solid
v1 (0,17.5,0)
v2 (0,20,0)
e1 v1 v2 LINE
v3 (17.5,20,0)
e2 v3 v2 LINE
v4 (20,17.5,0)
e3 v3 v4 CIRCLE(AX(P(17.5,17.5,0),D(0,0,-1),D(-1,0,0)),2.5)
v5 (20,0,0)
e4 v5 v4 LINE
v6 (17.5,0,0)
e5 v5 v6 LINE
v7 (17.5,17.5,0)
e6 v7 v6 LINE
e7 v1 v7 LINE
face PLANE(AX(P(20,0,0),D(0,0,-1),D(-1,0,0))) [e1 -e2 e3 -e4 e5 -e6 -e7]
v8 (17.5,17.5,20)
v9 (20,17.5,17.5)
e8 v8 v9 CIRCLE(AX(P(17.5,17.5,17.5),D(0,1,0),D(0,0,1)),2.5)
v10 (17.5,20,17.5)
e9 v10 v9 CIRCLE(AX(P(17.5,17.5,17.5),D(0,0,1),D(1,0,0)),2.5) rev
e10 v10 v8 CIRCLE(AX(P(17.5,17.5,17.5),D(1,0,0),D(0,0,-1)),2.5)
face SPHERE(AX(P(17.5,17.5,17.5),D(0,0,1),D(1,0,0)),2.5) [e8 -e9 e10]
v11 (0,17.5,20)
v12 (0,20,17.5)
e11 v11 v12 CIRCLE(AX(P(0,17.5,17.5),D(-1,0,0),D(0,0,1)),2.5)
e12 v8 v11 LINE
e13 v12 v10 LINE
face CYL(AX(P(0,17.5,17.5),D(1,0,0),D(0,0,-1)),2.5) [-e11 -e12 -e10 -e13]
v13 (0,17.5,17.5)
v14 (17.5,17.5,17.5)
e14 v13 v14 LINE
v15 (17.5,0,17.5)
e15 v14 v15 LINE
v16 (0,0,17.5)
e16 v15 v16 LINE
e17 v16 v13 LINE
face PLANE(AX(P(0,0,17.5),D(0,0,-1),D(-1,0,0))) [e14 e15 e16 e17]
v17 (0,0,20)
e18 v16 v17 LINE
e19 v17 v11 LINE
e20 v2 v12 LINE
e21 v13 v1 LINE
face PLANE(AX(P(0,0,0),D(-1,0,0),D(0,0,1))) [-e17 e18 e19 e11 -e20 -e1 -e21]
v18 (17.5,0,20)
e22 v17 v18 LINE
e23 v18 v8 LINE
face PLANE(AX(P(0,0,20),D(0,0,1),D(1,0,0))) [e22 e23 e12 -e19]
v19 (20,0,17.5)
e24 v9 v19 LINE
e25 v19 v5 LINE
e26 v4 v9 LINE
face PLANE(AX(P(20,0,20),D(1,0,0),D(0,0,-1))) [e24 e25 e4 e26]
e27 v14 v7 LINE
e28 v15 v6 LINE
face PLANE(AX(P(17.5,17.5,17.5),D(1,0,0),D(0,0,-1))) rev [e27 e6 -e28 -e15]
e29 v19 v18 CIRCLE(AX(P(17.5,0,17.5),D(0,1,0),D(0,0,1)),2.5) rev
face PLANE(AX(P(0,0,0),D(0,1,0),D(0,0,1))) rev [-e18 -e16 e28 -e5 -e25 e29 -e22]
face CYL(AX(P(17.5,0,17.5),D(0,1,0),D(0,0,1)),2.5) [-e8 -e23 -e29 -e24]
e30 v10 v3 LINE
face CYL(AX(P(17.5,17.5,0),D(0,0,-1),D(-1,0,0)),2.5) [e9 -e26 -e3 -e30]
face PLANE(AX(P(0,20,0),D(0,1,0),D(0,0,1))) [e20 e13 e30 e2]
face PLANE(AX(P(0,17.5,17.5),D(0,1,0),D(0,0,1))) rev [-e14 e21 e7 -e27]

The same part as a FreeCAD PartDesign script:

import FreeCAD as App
import Part
import Sketcher

V = App.Vector


def edges_at(feature, points):
    """Names of the edges that pass closest to the given points."""
    edges = feature.Shape.Edges
    near = lambda p: min(range(len(edges)), key=lambda i: edges[i].distToShape(Part.Vertex(*p))[0])
    return sorted({f"Edge{near(p) + 1}" for p in points})


def add_polygon(sketch, points):
    """Adds a closed chain of lines whose ends are joined by coincident constraints."""
    first, n = sketch.GeometryCount, len(points)
    for a, b in zip(points, points[1:] + points[:1]):
        sketch.addGeometry(Part.LineSegment(App.Vector(*a, 0), App.Vector(*b, 0)), False)
    for i in range(n):
        sketch.addConstraint(Sketcher.Constraint("Coincident", first + i, 2, first + (i + 1) % n, 1))

doc = App.newDocument("Part")
body = doc.addObject("PartDesign::Body", "Body")

sketch1 = body.newObject("Sketcher::SketchObject", "Sketch")
sketch1.AttachmentSupport = (doc.getObject("XZ_Plane"), [""])
sketch1.MapMode = "FlatFace"
sketch1.AttachmentOffset = App.Placement(V(0, 0, -20), App.Rotation())
add_polygon(sketch1, [(0, 0), (0, 20), (20, 20), (20, 0)])
sketch1.addConstraint(Sketcher.Constraint("Vertical", 0))
sketch1.addConstraint(Sketcher.Constraint("Horizontal", 1))
sketch1.addConstraint(Sketcher.Constraint("Vertical", 2))
sketch1.addConstraint(Sketcher.Constraint("Horizontal", 3))
sketch1.addConstraint(Sketcher.Constraint("Coincident", 3, 2, -1, 1))
sketch1.addConstraint(Sketcher.Constraint("Equal", 3, 0))
sketch1.addConstraint(Sketcher.Constraint("DistanceX", 1, 1, 1, 2, 20.0))
pad1 = body.newObject("PartDesign::Pad", "Pad")
pad1.Profile = sketch1
pad1.Length = 20

sketch2 = body.newObject("Sketcher::SketchObject", "Sketch001")
sketch2.AttachmentSupport = (doc.getObject("XY_Plane"), [""])
sketch2.MapMode = "FlatFace"
add_polygon(sketch2, [(18, 18), (18, 0), (0, 0), (0, 18)])
sketch2.addConstraint(Sketcher.Constraint("Vertical", 0))
sketch2.addConstraint(Sketcher.Constraint("Horizontal", 1))
sketch2.addConstraint(Sketcher.Constraint("Vertical", 2))
sketch2.addConstraint(Sketcher.Constraint("Horizontal", 3))
sketch2.addConstraint(Sketcher.Constraint("Coincident", 1, 2, -1, 1))
sketch2.addConstraint(Sketcher.Constraint("Equal", 3, 0))
sketch2.addConstraint(Sketcher.Constraint("DistanceX", 1, 2, 1, 1, 17.5))
pocket1 = body.newObject("PartDesign::Pocket", "Pocket")
pocket1.Profile = sketch2
pocket1.Length = 17.5
pocket1.Reversed = True
doc.recompute()

fillet = body.newObject("PartDesign::Fillet", "Fillet")
fillet.Base = (pocket1, edges_at(pocket1, [(20, 20, 10), (10, 20, 20), (20, 10, 20)]))
fillet.Radius = 2.5

doc.recompute()
